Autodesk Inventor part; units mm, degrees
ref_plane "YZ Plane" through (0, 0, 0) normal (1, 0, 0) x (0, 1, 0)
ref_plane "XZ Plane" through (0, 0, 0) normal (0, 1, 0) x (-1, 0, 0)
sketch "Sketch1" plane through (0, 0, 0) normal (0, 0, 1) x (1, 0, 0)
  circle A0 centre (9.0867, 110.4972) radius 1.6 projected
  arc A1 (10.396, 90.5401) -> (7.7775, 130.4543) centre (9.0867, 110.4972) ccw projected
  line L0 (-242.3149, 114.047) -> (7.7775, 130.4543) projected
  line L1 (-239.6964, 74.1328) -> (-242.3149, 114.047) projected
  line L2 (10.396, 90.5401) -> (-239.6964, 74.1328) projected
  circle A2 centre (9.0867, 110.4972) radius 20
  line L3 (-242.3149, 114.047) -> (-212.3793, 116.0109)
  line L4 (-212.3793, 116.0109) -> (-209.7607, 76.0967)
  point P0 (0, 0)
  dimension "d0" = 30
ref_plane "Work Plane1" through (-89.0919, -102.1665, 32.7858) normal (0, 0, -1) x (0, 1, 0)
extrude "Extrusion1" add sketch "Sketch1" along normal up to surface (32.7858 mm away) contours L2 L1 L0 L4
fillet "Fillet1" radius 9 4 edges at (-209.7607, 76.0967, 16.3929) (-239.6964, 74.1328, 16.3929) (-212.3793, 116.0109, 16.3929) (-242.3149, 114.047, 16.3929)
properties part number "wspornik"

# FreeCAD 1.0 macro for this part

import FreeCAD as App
import Part
import Sketcher
from FreeCAD import Vector
Q = App.Units.Quantity


def edges_at(feature, points):
    """Names of the edges that pass closest to the given points."""
    edges = feature.Shape.Edges
    near = lambda p: min(range(len(edges)), key=lambda i: edges[i].distToShape(Part.Vertex(*p))[0])
    return sorted({f"Edge{near(p) + 1}" for p in points})

doc = App.newDocument("Part")
body = doc.addObject("PartDesign::Body", "Body")

sketch1 = body.newObject("Sketcher::SketchObject", "Sketch")
sketch1.AttachmentSupport = (doc.getObject("XY_Plane"), [""])
sketch1.MapMode = "FlatFace"
sketch1.addGeometry([
    Part.LineSegment(Vector(-240, 74, 0), Vector(-210, 76, 0)),
    Part.LineSegment(Vector(-210, 76, 0), Vector(-212, 116, 0)),
    Part.LineSegment(Vector(-212, 116, 0), Vector(-242, 114, 0)),
    Part.LineSegment(Vector(-242, 114, 0), Vector(-240, 74, 0)),
], False)
sketch1.addConstraint([
    Sketcher.Constraint("Coincident", 0, 2, 1, 1),
    Sketcher.Constraint("Coincident", 1, 2, 2, 1),
    Sketcher.Constraint("Coincident", 2, 2, 3, 1),
    Sketcher.Constraint("Coincident", 3, 2, 0, 1),
    Sketcher.Constraint("Perpendicular", 0, 1),
    Sketcher.Constraint("Perpendicular", 1, 2),
    Sketcher.Constraint("Perpendicular", 2, 3),
    Sketcher.Constraint("Distance", 0, Q("30 mm")),
    Sketcher.Constraint("Distance", 1, Q("40 mm")),
    Sketcher.Constraint("DistanceY", -1, 1, 1, 2, Q("116.011 mm")),
    Sketcher.Constraint("DistanceX", 2, 2, -1, 1, Q("242.315 mm")),
    Sketcher.Constraint("DistanceY", -1, 1, 2, 2, Q("114.047 mm")),
])
pad1 = body.newObject("PartDesign::Pad", "Pad")
pad1.Profile = sketch1
pad1.Length = 32.7858
doc.recompute()

fillet = body.newObject("PartDesign::Fillet", "Fillet")
fillet.Base = (pad1, edges_at(pad1, [
    (-209.761, 76.097, 16.393),
    (-239.696, 74.133, 16.393),
    (-212.379, 116.011, 16.393),
    (-242.315, 114.047, 16.393),
]))
fillet.Radius = 9

doc.recompute()
